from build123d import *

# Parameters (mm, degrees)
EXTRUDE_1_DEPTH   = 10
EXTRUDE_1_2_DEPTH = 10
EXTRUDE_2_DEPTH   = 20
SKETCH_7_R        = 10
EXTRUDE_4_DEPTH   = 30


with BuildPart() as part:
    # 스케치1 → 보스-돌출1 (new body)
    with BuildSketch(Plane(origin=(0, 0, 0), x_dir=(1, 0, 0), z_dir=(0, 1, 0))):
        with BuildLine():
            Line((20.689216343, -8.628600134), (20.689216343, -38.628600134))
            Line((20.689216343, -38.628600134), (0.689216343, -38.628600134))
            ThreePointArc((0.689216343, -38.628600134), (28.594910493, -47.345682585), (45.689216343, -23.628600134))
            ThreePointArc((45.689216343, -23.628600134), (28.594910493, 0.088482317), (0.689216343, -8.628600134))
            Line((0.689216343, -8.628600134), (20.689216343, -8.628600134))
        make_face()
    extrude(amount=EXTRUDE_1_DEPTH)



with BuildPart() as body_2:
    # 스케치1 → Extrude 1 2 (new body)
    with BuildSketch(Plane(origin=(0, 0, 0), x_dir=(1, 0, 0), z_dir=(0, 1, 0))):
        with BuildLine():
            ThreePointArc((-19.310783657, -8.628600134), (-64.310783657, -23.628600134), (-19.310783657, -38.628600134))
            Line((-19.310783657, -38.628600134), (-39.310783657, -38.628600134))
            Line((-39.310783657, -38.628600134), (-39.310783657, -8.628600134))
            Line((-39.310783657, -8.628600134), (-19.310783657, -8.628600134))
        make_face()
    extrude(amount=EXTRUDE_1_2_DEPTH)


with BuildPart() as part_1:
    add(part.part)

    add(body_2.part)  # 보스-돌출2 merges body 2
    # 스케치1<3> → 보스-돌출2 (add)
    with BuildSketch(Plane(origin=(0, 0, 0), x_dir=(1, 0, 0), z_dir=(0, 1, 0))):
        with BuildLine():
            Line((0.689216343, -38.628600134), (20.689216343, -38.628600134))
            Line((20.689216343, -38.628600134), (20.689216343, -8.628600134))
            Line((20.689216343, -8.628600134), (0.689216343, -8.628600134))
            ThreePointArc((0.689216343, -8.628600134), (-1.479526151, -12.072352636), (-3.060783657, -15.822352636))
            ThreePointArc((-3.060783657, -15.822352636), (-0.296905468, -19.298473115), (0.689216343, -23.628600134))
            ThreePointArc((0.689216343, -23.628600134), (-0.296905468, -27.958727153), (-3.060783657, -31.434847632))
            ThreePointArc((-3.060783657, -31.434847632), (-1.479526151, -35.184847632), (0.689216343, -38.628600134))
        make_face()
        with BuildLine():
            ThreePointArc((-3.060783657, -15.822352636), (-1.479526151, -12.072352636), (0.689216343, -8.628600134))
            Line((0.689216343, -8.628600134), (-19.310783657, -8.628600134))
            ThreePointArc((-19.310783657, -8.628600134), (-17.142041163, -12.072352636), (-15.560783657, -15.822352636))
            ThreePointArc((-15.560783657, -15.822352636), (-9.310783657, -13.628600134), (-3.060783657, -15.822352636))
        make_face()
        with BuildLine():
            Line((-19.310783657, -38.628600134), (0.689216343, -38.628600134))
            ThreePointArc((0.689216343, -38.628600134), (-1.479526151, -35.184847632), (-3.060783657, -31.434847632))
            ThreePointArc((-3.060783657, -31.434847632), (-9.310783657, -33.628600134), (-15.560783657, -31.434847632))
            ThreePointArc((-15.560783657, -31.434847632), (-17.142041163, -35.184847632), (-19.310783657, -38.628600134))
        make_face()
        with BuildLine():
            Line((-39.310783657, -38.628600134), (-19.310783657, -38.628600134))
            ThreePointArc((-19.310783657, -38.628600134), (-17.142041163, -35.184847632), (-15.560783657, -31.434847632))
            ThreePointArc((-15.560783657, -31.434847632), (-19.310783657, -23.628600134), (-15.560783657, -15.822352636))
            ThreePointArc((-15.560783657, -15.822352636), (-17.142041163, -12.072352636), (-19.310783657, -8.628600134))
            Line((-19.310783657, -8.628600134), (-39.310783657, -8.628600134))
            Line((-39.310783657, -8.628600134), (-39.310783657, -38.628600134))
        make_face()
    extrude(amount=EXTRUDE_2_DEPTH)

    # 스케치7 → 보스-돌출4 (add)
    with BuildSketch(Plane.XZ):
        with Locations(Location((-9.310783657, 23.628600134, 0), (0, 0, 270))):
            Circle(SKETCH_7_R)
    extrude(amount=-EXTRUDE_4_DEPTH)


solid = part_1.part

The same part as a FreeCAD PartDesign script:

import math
import FreeCAD as App
import Part
import Sketcher
from FreeCAD import Vector
Q = App.Units.Quantity

doc = App.newDocument("Part")
body = doc.addObject("PartDesign::Body", "Body")

sketch1 = body.newObject("Sketcher::SketchObject", "Sketch")
sketch1.AttachmentSupport = (doc.getObject("XZ_Plane"), [""])
sketch1.MapMode = "FlatFace"
sketch1.addGeometry([
    Part.LineSegment(Vector(20.689216, 8.6286, 0), Vector(20.689216, 38.6286, 0)),
    Part.LineSegment(Vector(20.689216, 38.6286, 0), Vector(0.689216, 38.6286, 0)),
    Part.ArcOfCircle(Part.Circle(Vector(20.689216, 23.6286, 0), Vector(0, 0, 1), 25), math.radians(0), math.radians(143.130102)),
    Part.ArcOfCircle(Part.Circle(Vector(20.689216, 23.6286, 0), Vector(0, 0, 1), 25), math.radians(-143.130102), math.radians(0)),
    Part.LineSegment(Vector(0.689216, 8.6286, 0), Vector(20.689216, 8.6286, 0)),
], False)
sketch1.addConstraint([
    Sketcher.Constraint("Coincident", 0, 2, 1, 1),
    Sketcher.Constraint("Coincident", 1, 2, 2, 2),
    Sketcher.Constraint("Tangent", 2, 1, 3, 2),
    Sketcher.Constraint("Coincident", 3, 1, 4, 1),
    Sketcher.Constraint("Coincident", 4, 2, 0, 1),
    Sketcher.Constraint("Vertical", 0),
    Sketcher.Constraint("Horizontal", 1),
    Sketcher.Constraint("Horizontal", 4),
    Sketcher.Constraint("Equal", 2, 3),
    Sketcher.Constraint("Horizontal", 3, 3, 2, 1),
    Sketcher.Constraint("Vertical", 3, 3, 0, 2),
    Sketcher.Constraint("Vertical", 1, 2, 3, 1),
    Sketcher.Constraint("Radius", 2, Q("25 mm")),
    Sketcher.Constraint("DistanceX", 1, 2, 1, 1, Q("20 mm")),
    Sketcher.Constraint("DistanceY", -1, 1, 2, 3, Q("23.6286 mm")),
    Sketcher.Constraint("DistanceX", -1, 1, 2, 3, Q("20.689216 mm")),
])
pad1 = body.newObject("PartDesign::Pad", "Pad")
pad1.Profile = sketch1
pad1.Length = 10
pad1.Reversed = True
body2 = doc.addObject("PartDesign::Body", "Body001")

sketch2 = body2.newObject("Sketcher::SketchObject", "Sketch001")
sketch2.AttachmentSupport = (doc.getObject("XZ_Plane001"), [""])
sketch2.MapMode = "FlatFace"
sketch2.addGeometry([
    Part.ArcOfCircle(Part.Circle(Vector(-39.310784, 23.6286, 0), Vector(0, 0, 1), 25), math.radians(36.869898), math.radians(323.130102)),
    Part.LineSegment(Vector(-19.310784, 38.6286, 0), Vector(-39.310784, 38.6286, 0)),
    Part.LineSegment(Vector(-39.310784, 38.6286, 0), Vector(-39.310784, 8.6286, 0)),
    Part.LineSegment(Vector(-39.310784, 8.6286, 0), Vector(-19.310784, 8.6286, 0)),
], False)
sketch2.addConstraint([
    Sketcher.Constraint("Coincident", 0, 1, 1, 1),
    Sketcher.Constraint("Coincident", 1, 2, 2, 1),
    Sketcher.Constraint("Coincident", 2, 2, 3, 1),
    Sketcher.Constraint("Coincident", 3, 2, 0, 2),
    Sketcher.Constraint("Horizontal", 1),
    Sketcher.Constraint("Vertical", 2),
    Sketcher.Constraint("Horizontal", 3),
    Sketcher.Constraint("Vertical", 0, 3, 1, 2),
    Sketcher.Constraint("Vertical", 0, 1, 3, 2),
    Sketcher.Constraint("Radius", 0, Q("25 mm")),
    Sketcher.Constraint("DistanceX", 1, 2, 1, 1, Q("20 mm")),
    Sketcher.Constraint("DistanceY", -1, 1, 0, 3, Q("23.6286 mm")),
    Sketcher.Constraint("DistanceX", 0, 3, -1, 1, Q("39.310784 mm")),
])
pad2 = body2.newObject("PartDesign::Pad", "Pad001")
pad2.Profile = sketch2
pad2.Length = 10
pad2.Reversed = True
body.AllowCompound = True
doc.recompute()

boolean = body.newObject("PartDesign::Boolean", "Boolean")
boolean.Type = "Fuse"
boolean.addObjects([body2])

sketch3 = body.newObject("Sketcher::SketchObject", "Sketch002")
sketch3.AttachmentSupport = (doc.getObject("XZ_Plane"), [""])
sketch3.MapMode = "FlatFace"
sketch3.addGeometry([
    Part.LineSegment(Vector(20.689216, 38.6286, 0), Vector(20.689216, 8.6286, 0)),
    Part.LineSegment(Vector(20.689216, 8.6286, 0), Vector(-39.310784, 8.6286, 0)),
    Part.LineSegment(Vector(-39.310784, 8.6286, 0), Vector(-39.310784, 38.6286, 0)),
    Part.LineSegment(Vector(-39.310784, 38.6286, 0), Vector(20.689216, 38.6286, 0)),
    Part.ArcOfCircle(Part.Circle(Vector(-9.310784, 23.6286, 0), Vector(0, 0, 1), 10), math.radians(-51.317813), math.radians(0)),
    Part.ArcOfCircle(Part.Circle(Vector(-9.310784, 23.6286, 0), Vector(0, 0, 1), 10), math.radians(0), math.radians(51.317813)),
    Part.ArcOfCircle(Part.Circle(Vector(-9.310784, 23.6286, 0), Vector(0, 0, 1), 10), math.radians(51.317813), math.radians(308.682187)),
], False)
sketch3.addConstraint([
    Sketcher.Constraint("Coincident", 0, 2, 1, 1),
    Sketcher.Constraint("Coincident", 1, 2, 2, 1),
    Sketcher.Constraint("Coincident", 2, 2, 3, 1),
    Sketcher.Constraint("Coincident", 3, 2, 0, 1),
    Sketcher.Constraint("Tangent", 4, 2, 5, 1),
    Sketcher.Constraint("Tangent", 5, 2, 6, 1),
    Sketcher.Constraint("Tangent", 6, 2, 4, 1),
    Sketcher.Constraint("Vertical", 0),
    Sketcher.Constraint("Horizontal", 1),
    Sketcher.Constraint("Vertical", 2),
    Sketcher.Constraint("Horizontal", 3),
    Sketcher.Constraint("Horizontal", 6, 3, 4, 2),
    Sketcher.Constraint("Vertical", 5, 2, 6, 2),
    Sketcher.Constraint("Radius", 4, Q("10 mm")),
    Sketcher.Constraint("DistanceX", 1, 2, 1, 1, Q("60 mm")),
    Sketcher.Constraint("DistanceY", 0, 2, 0, 1, Q("30 mm")),
    Sketcher.Constraint("DistanceX", 4, 3, 0, 2, Q("30 mm")),
    Sketcher.Constraint("DistanceY", 0, 2, 4, 3, Q("15 mm")),
    Sketcher.Constraint("DistanceX", 5, 2, 4, 2, Q("3.75 mm")),
    Sketcher.Constraint("DistanceY", -1, 1, 4, 3, Q("23.6286 mm")),
    Sketcher.Constraint("DistanceX", 4, 3, -1, 1, Q("9.310784 mm")),
])
pad3 = body.newObject("PartDesign::Pad", "Pad002")
pad3.Profile = sketch3
pad3.Length = 20
pad3.Reversed = True

sketch4 = body.newObject("Sketcher::SketchObject", "Sketch003")
sketch4.AttachmentSupport = (doc.getObject("XZ_Plane"), [""])
sketch4.MapMode = "FlatFace"
sketch4.addGeometry(Part.Circle(Vector(-9.310784, 23.6286, 0), Vector(0, 0, 1), 10), False)
sketch4.addConstraint([
    Sketcher.Constraint("Diameter", 0, Q("20 mm")),
    Sketcher.Constraint("DistanceY", -1, 1, 0, 3, Q("23.6286 mm")),
    Sketcher.Constraint("DistanceX", 0, 3, -1, 1, Q("9.310784 mm")),
])
pad4 = body.newObject("PartDesign::Pad", "Pad003")
pad4.Profile = sketch4
pad4.Length = 30
pad4.Reversed = True

doc.recompute()
